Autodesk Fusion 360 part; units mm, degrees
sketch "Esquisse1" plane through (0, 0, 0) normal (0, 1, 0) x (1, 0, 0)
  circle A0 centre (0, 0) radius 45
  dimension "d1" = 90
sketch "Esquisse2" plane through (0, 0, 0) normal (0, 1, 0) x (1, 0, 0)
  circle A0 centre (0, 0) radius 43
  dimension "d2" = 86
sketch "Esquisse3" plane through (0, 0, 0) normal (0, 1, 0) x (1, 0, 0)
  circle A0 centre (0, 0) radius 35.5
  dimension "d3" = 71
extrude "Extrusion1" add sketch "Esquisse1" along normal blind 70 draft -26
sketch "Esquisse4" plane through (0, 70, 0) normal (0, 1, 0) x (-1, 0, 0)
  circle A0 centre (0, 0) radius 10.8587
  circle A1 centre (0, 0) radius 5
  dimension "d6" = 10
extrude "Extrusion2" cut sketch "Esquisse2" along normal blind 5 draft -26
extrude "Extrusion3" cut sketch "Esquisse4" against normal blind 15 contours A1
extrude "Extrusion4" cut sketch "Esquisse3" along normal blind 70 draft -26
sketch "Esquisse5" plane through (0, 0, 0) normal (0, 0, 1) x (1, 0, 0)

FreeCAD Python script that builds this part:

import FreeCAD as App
import Part
import Sketcher
Q = App.Units.Quantity

doc = App.newDocument("Part")
body = doc.addObject("PartDesign::Body", "Body")

sketch1 = body.newObject("Sketcher::SketchObject", "Sketch")
sketch1.AttachmentSupport = (doc.getObject("XZ_Plane"), [""])
sketch1.MapMode = "FlatFace"
sketch1.addGeometry(Part.Circle(App.Vector(0, 0, 0), App.Vector(0, 0, 1), 45), False)
sketch1.addConstraint(Sketcher.Constraint("Coincident", 0, 3, -1, 1))
sketch1.addConstraint(Sketcher.Constraint("Diameter", 0, Q("90 mm")))
pad1 = body.newObject("PartDesign::Pad", "Pad")
pad1.Profile = sketch1
pad1.Length = 70
pad1.Reversed = True
pad1.TaperAngle = -26

sketch2 = body.newObject("Sketcher::SketchObject", "Sketch001")
sketch2.AttachmentSupport = (doc.getObject("XZ_Plane"), [""])
sketch2.MapMode = "FlatFace"
sketch2.addGeometry(Part.Circle(App.Vector(0, 0, 0), App.Vector(0, 0, 1), 43), False)
sketch2.addConstraint(Sketcher.Constraint("Coincident", 0, 3, -1, 1))
sketch2.addConstraint(Sketcher.Constraint("Diameter", 0, Q("86 mm")))
pocket1 = body.newObject("PartDesign::Pocket", "Pocket")
pocket1.Profile = sketch2
pocket1.Length = 5
pocket1.TaperAngle = -26

sketch3 = body.newObject("Sketcher::SketchObject", "Sketch002")
sketch3.AttachmentSupport = (doc.getObject("XZ_Plane"), [""])
sketch3.MapMode = "FlatFace"
sketch3.AttachmentOffset = App.Placement(App.Vector(0, 0, -70), App.Rotation())
sketch3.addGeometry(Part.Circle(App.Vector(0, 0, 0), App.Vector(0, 0, 1), 5), False)
sketch3.addConstraint(Sketcher.Constraint("Coincident", 0, 3, -1, 1))
sketch3.addConstraint(Sketcher.Constraint("Diameter", 0, Q("10 mm")))
pocket2 = body.newObject("PartDesign::Pocket", "Pocket001")
pocket2.Profile = sketch3
pocket2.Length = 15
pocket2.Reversed = True

sketch4 = body.newObject("Sketcher::SketchObject", "Sketch003")
sketch4.AttachmentSupport = (doc.getObject("XZ_Plane"), [""])
sketch4.MapMode = "FlatFace"
sketch4.addGeometry(Part.Circle(App.Vector(0, 0, 0), App.Vector(0, 0, 1), 36), False)
sketch4.addConstraint(Sketcher.Constraint("Coincident", 0, 3, -1, 1))
sketch4.addConstraint(Sketcher.Constraint("Diameter", 0, Q("71 mm")))
pocket3 = body.newObject("PartDesign::Pocket", "Pocket002")
pocket3.Profile = sketch4
pocket3.Length = 70
pocket3.TaperAngle = -26

doc.recompute()
